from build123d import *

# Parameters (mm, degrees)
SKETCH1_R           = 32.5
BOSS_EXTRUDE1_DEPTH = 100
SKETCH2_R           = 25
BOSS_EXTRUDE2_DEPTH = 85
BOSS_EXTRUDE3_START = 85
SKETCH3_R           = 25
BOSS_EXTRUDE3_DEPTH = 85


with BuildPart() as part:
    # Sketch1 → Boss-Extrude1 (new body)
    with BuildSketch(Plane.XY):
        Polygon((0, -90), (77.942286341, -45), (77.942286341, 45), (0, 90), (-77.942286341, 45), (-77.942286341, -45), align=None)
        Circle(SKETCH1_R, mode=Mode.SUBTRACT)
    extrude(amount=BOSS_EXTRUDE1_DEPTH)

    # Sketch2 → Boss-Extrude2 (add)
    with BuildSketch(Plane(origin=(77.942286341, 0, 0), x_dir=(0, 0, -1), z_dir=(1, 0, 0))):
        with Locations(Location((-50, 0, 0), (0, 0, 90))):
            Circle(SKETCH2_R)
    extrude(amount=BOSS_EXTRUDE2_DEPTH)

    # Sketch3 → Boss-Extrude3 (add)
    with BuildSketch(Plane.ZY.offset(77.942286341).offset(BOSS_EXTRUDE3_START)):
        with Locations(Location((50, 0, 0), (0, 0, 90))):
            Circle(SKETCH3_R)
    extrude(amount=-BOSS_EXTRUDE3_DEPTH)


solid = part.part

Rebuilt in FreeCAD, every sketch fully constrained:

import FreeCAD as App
import Part
import Sketcher
Q = App.Units.Quantity

doc = App.newDocument("Part")
body = doc.addObject("PartDesign::Body", "Body")

# Sketch on XY plane
sketch1 = body.newObject("Sketcher::SketchObject", "Sketch")
sketch1.AttachmentSupport = (doc.getObject("XY_Plane"), [""])
sketch1.MapMode = "FlatFace"
sketch1.addGeometry([
    Part.LineSegment(App.Vector(0, -90, 0), App.Vector(78, -45, 0)),  # 0
    Part.LineSegment(App.Vector(78, -45, 0), App.Vector(78, 45, 0)),  # 1
    Part.LineSegment(App.Vector(78, 45, 0), App.Vector(0, 90, 0)),  # 2
    Part.LineSegment(App.Vector(0, 90, 0), App.Vector(-78, 45, 0)),  # 3
    Part.LineSegment(App.Vector(-78, 45, 0), App.Vector(-78, -45, 0)),  # 4
    Part.LineSegment(App.Vector(-78, -45, 0), App.Vector(0, -90, 0)),  # 5
    Part.Circle(App.Vector(0, 0, 0), App.Vector(0, 0, 1), 32),  # 6
], False)
sketch1.addConstraint([
    Sketcher.Constraint("Coincident", 0, 2, 1, 1),
    Sketcher.Constraint("Coincident", 1, 2, 2, 1),
    Sketcher.Constraint("Coincident", 2, 2, 3, 1),
    Sketcher.Constraint("Coincident", 3, 2, 4, 1),
    Sketcher.Constraint("Coincident", 4, 2, 5, 1),
    Sketcher.Constraint("Coincident", 5, 2, 0, 1),
    Sketcher.Constraint("Vertical", 1),
    Sketcher.Constraint("Vertical", 4),
    Sketcher.Constraint("Coincident", 6, 3, -1, 1),
    Sketcher.Constraint("Symmetric", 0, 2, 3, 2, -1, 1),
    Sketcher.Constraint("Symmetric", 2, 2, 5, 2, -1, 1),
    Sketcher.Constraint("PointOnObject", 2, 2, -2),
    Sketcher.Constraint("Parallel", 2, 5),
    Sketcher.Constraint("Horizontal", 1, 2, 3, 2),
    Sketcher.Constraint("Diameter", 6, 65.0),
    Sketcher.Constraint("DistanceY", 1, 1, 1, 2, 90.0),
    Sketcher.Constraint("Angle", 0, Q("30 deg")),
    Sketcher.Constraint("Distance", 0, 90.0),
])
pad1 = body.newObject("PartDesign::Pad", "Pad")
pad1.Profile = sketch1
pad1.Length = 100

# Sketch on YZ plane
sketch2 = body.newObject("Sketcher::SketchObject", "Sketch001")
sketch2.AttachmentSupport = (doc.getObject("YZ_Plane"), [""])
sketch2.MapMode = "FlatFace"
sketch2.AttachmentOffset = App.Placement(App.Vector(0, 0, 77.942286), App.Rotation())
sketch2.addGeometry(Part.Circle(App.Vector(0, 50, 0), App.Vector(0, 0, 1), 25), False)
sketch2.addConstraint([
    Sketcher.Constraint("PointOnObject", 0, 3, -2),
    Sketcher.Constraint("Diameter", 0, 50.0),
    Sketcher.Constraint("DistanceY", -1, 1, 0, 3, 50.0),
])
pad2 = body.newObject("PartDesign::Pad", "Pad001")
pad2.Profile = sketch2
pad2.Length = 85

# Sketch on YZ plane
sketch3 = body.newObject("Sketcher::SketchObject", "Sketch002")
sketch3.AttachmentSupport = (doc.getObject("YZ_Plane"), [""])
sketch3.MapMode = "FlatFace"
sketch3.AttachmentOffset = App.Placement(App.Vector(0, 0, -162.942286), App.Rotation())
sketch3.addGeometry(Part.Circle(App.Vector(0, 50, 0), App.Vector(0, 0, 1), 25), False)
sketch3.addConstraint([
    Sketcher.Constraint("PointOnObject", 0, 3, -2),
    Sketcher.Constraint("Diameter", 0, 50.0),
    Sketcher.Constraint("DistanceY", -1, 1, 0, 3, 50.0),
])
pad3 = body.newObject("PartDesign::Pad", "Pad002")
pad3.Profile = sketch3
pad3.Length = 85

doc.recompute()
